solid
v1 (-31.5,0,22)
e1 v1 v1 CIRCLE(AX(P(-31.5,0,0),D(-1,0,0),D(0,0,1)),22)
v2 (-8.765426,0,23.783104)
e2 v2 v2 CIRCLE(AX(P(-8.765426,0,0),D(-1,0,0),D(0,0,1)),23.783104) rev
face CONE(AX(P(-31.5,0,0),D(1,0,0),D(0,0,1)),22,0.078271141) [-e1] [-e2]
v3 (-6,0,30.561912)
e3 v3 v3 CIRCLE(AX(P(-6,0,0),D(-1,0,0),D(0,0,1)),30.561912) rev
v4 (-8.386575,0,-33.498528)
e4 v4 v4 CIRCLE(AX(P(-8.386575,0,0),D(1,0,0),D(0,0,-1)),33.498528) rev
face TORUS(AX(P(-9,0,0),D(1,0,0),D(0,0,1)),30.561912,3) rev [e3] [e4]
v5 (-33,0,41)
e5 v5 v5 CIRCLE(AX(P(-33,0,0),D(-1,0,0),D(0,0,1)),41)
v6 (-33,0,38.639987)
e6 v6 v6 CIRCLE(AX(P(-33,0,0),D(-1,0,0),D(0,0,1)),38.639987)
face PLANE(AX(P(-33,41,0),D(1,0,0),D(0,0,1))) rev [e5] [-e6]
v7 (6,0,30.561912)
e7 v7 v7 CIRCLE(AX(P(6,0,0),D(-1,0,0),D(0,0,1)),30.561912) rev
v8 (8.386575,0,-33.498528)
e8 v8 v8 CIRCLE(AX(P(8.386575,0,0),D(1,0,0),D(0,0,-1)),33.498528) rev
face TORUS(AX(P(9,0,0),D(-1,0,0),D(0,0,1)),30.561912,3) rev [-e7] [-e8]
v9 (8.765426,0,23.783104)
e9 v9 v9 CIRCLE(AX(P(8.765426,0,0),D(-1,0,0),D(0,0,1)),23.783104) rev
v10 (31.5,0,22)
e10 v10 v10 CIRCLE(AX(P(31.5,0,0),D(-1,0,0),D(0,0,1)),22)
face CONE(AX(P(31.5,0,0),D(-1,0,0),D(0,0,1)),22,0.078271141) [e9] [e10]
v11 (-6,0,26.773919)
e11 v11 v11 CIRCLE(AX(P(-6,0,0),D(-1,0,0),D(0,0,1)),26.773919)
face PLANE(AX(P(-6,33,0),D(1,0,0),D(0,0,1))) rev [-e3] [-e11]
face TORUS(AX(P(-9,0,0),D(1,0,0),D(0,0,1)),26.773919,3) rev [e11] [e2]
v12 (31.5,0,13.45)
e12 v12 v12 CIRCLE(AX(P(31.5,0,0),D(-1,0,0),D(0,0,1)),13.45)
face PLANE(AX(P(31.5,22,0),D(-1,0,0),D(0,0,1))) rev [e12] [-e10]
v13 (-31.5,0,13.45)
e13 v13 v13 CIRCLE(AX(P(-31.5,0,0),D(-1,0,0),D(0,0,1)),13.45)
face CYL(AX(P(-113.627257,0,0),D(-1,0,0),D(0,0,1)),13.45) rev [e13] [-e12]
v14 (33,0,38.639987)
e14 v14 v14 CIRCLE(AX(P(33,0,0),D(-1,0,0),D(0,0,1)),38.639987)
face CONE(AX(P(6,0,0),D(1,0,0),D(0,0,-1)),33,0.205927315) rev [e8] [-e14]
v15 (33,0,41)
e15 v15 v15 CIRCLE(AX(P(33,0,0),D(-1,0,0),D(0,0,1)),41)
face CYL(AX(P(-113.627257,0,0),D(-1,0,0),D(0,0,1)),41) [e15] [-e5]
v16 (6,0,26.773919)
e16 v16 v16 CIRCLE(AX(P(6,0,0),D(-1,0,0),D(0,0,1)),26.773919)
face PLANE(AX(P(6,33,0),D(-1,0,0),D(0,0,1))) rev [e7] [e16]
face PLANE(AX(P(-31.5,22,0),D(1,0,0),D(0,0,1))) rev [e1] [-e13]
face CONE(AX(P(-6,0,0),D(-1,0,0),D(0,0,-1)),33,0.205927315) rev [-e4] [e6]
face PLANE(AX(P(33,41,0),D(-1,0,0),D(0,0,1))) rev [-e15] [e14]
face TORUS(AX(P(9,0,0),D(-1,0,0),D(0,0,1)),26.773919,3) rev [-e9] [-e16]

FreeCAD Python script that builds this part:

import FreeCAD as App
import Part
import Sketcher

V = App.Vector
Q = App.Units.Quantity


def edges_at(feature, points):
    """Names of the edges that pass closest to the given points."""
    edges = feature.Shape.Edges
    near = lambda p: min(range(len(edges)), key=lambda i: edges[i].distToShape(Part.Vertex(*p))[0])
    return sorted({f"Edge{near(p) + 1}" for p in points})

doc = App.newDocument("Part")
body = doc.addObject("PartDesign::Body", "Body")

# Sketch on XY plane
sketch1 = body.newObject("Sketcher::SketchObject", "Sketch")
sketch1.AttachmentSupport = (doc.getObject("XY_Plane"), [""])
sketch1.MapMode = "FlatFace"
sketch1.addGeometry(Part.LineSegment(V(0, 41, 0), V(0, 13.4, 0)), False)
sketch1.addGeometry(Part.LineSegment(V(0, 13.4, 0), V(31.5, 13.4, 0)), False)
sketch1.addGeometry(Part.LineSegment(V(31.5, 13.4, 0), V(31.5, 22, 0)), False)
sketch1.addGeometry(Part.LineSegment(V(31.5, 22, 0), V(6, 24, 0)), False)
sketch1.addGeometry(Part.LineSegment(V(6, 24, 0), V(6, 33, 0)), False)
sketch1.addGeometry(Part.LineSegment(V(6, 33, 0), V(33, 38.6, 0)), False)
sketch1.addGeometry(Part.LineSegment(V(33, 38.6, 0), V(33, 41, 0)), False)
sketch1.addGeometry(Part.LineSegment(V(33, 41, 0), V(0, 41, 0)), False)
sketch1.addConstraint(Sketcher.Constraint("Coincident", 0, 2, 1, 1))
sketch1.addConstraint(Sketcher.Constraint("Coincident", 1, 2, 2, 1))
sketch1.addConstraint(Sketcher.Constraint("Coincident", 2, 2, 3, 1))
sketch1.addConstraint(Sketcher.Constraint("Coincident", 3, 2, 4, 1))
sketch1.addConstraint(Sketcher.Constraint("Coincident", 4, 2, 5, 1))
sketch1.addConstraint(Sketcher.Constraint("Coincident", 5, 2, 6, 1))
sketch1.addConstraint(Sketcher.Constraint("Coincident", 6, 2, 7, 1))
sketch1.addConstraint(Sketcher.Constraint("Coincident", 7, 2, 0, 1))
sketch1.addConstraint(Sketcher.Constraint("Vertical", 0))
sketch1.addConstraint(Sketcher.Constraint("Horizontal", 1))
sketch1.addConstraint(Sketcher.Constraint("Vertical", 2))
sketch1.addConstraint(Sketcher.Constraint("Vertical", 4))
sketch1.addConstraint(Sketcher.Constraint("Vertical", 6))
sketch1.addConstraint(Sketcher.Constraint("Horizontal", 7))
sketch1.addConstraint(Sketcher.Constraint("PointOnObject", 0, 2, -2))
sketch1.addConstraint(Sketcher.Constraint("DistanceX", 7, 2, 7, 1, Q("33 mm")))
sketch1.addConstraint(Sketcher.Constraint("DistanceY", 4, 1, 4, 2, Q("9 mm")))
sketch1.addConstraint(Sketcher.Constraint("DistanceX", 1, 1, 1, 2, Q("31.5 mm")))
sketch1.addConstraint(Sketcher.Constraint("DistanceY", -1, 1, 2, 2, Q("22 mm")))
sketch1.addConstraint(Sketcher.Constraint("DistanceX", -1, 1, 3, 2, Q("6 mm")))
sketch1.addConstraint(Sketcher.Constraint("DistanceY", -1, 1, 3, 2, Q("24 mm")))
sketch1.addConstraint(Sketcher.Constraint("DistanceY", -1, 1, 6, 2, Q("41 mm")))
sketch1.addConstraint(Sketcher.Constraint("DistanceY", 0, 2, 0, 1, Q("27.55 mm")))
sketch1.addConstraint(Sketcher.Constraint("DistanceY", 6, 1, 6, 2, Q("2.360013 mm")))
revolution = body.newObject("PartDesign::Revolution", "Revolution")
revolution.Profile = sketch1
revolution.ReferenceAxis = (sketch1, ["H_Axis"])
revolution.Angle = 360
doc.recompute()

fillet = body.newObject("PartDesign::Fillet", "Fillet")
fillet.Base = (revolution, edges_at(revolution, [(6, -33, 0)]))
fillet.Radius = 3
doc.recompute()

fillet2 = body.newObject("PartDesign::Fillet", "Fillet001")
fillet2.Base = (fillet, edges_at(fillet, [(6, -24, 0)]))
fillet2.Radius = 3
body2 = doc.addObject("PartDesign::Body", "Body001")
doc.recompute()

body2.BaseFeature = body
doc.recompute()

mirroring = doc.addObject("Part::Mirroring", "Mirroring")
mirroring.Source = body
mirroring.Base = V(0, 0, 0)
mirroring.Normal = V(1, 0, 0)
body3 = doc.addObject("PartDesign::Body", "Body002")
body3.BaseFeature = mirroring
boolean = body2.newObject("PartDesign::Boolean", "Boolean")
boolean.Type = "Fuse"
boolean.addObjects([body3])
doc.recompute()
mirroring.Visibility = False

doc.recompute()
